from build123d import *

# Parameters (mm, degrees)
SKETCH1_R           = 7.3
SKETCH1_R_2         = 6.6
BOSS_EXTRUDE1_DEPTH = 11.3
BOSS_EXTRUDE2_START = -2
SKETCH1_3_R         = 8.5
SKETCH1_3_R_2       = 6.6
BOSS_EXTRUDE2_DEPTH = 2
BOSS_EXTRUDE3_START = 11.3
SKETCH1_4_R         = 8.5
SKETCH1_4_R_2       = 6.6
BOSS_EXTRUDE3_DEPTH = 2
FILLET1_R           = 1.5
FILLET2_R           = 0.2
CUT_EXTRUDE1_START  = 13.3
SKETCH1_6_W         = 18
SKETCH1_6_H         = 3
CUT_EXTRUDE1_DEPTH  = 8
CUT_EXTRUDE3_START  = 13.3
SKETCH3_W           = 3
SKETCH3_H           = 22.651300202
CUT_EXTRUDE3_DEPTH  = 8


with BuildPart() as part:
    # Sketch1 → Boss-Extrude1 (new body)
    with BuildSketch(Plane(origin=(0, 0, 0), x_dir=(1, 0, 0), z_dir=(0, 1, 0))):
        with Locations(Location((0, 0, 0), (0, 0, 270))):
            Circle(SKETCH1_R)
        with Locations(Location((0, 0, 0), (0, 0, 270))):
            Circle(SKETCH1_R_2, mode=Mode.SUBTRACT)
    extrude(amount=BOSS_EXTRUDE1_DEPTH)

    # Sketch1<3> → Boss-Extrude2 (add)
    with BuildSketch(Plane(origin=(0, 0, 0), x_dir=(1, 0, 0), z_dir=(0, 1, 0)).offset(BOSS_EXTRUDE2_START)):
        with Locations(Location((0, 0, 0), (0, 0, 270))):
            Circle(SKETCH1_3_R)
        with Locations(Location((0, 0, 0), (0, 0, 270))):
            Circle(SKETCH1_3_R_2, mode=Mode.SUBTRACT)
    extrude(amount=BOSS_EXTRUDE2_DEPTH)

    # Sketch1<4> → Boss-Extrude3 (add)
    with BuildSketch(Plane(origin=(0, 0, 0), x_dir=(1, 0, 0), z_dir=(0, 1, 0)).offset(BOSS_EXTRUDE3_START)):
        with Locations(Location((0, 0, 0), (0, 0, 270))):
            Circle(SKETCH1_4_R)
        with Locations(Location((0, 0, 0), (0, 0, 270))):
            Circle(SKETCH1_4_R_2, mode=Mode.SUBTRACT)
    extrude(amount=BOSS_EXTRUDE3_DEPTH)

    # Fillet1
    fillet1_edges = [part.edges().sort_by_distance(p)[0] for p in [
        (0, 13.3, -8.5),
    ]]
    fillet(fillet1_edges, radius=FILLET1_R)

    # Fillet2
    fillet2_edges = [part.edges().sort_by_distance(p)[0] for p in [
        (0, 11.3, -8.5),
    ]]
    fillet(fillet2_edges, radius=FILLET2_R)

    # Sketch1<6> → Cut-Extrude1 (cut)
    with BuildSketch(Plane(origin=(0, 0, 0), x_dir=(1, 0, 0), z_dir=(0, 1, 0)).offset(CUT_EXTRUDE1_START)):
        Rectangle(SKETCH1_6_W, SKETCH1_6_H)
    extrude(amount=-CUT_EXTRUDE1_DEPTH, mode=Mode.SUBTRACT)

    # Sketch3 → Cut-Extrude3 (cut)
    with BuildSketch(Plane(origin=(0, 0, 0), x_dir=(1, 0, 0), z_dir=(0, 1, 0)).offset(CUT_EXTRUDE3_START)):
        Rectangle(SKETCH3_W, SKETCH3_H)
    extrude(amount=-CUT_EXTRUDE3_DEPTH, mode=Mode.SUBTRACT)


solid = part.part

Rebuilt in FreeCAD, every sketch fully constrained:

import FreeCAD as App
import Part
import Sketcher

V = App.Vector
Q = App.Units.Quantity


def edges_at(feature, points):
    """Names of the edges that pass closest to the given points."""
    edges = feature.Shape.Edges
    near = lambda p: min(range(len(edges)), key=lambda i: edges[i].distToShape(Part.Vertex(*p))[0])
    return sorted({f"Edge{near(p) + 1}" for p in points})

doc = App.newDocument("Part")
params = doc.addObject("Spreadsheet::Sheet", "Params")
for row, (alias, value) in enumerate([
    ("sketch1_diameter", "14.6 mm"),
    ("sketch1_diameter2", "13.2 mm"),
    ("pad1_length", "11.3 mm"),
    ("sketch2_diameter", "17 mm"),
    ("sketch2_diameter2", "13.2 mm"),
    ("pad2_length", "2 mm"),
    ("sketch3_diameter", "17 mm"),
    ("sketch3_diameter2", "13.2 mm"),
    ("pad3_length", "2 mm"),
    ("fillet_radius", "1.5 mm"),
    ("fillet2_radius", "0.2 mm"),
    ("sketch4_width", "18 mm"),
    ("sketch4_height", "3 mm"),
    ("pocket1_length", "8 mm"),
    ("sketch5_width", "3 mm"),
    ("pocket2_length", "8 mm"),
], start=1):
    params.set(f"A{row}", alias)
    params.set(f"B{row}", "=" + value)
    params.setAlias(f"B{row}", alias)

body = doc.addObject("PartDesign::Body", "Body")

# Sketch on XZ plane
sketch1 = doc.addObject("Sketcher::SketchObject", "Sketch")
body.addObject(sketch1)
sketch1.AttachmentSupport = (doc.XZ_Plane, [""])
sketch1.MapMode = "FlatFace"
sketch1.addGeometry(Part.Circle(V(0, 0, 0), V(0, 0, 1), 7), False)
sketch1.addGeometry(Part.Circle(V(0, 0, 0), V(0, 0, 1), 7), False)
sketch1.addConstraint(Sketcher.Constraint("Coincident", 0, 3, -1, 1))
sketch1.addConstraint(Sketcher.Constraint("Coincident", 1, 3, -1, 1))
sketch1.addConstraint(Sketcher.Constraint("Diameter", 0, Q("14.6 mm")))
sketch1.addConstraint(Sketcher.Constraint("Diameter", 1, Q("13.2 mm")))
sketch1.setExpression("Constraints[2]", "Params.sketch1_diameter")
sketch1.setExpression("Constraints[3]", "Params.sketch1_diameter2")
pad1 = doc.addObject("PartDesign::Pad", "Pad")
body.addObject(pad1)
pad1.Profile = sketch1
pad1.setExpression("Length", "Params.pad1_length")
pad1.Reversed = True

# Sketch on XZ plane
sketch2 = doc.addObject("Sketcher::SketchObject", "Sketch001")
body.addObject(sketch2)
sketch2.AttachmentSupport = (doc.XZ_Plane, [""])
sketch2.MapMode = "FlatFace"
sketch2.AttachmentOffset = App.Placement(V(0, 0, 2), App.Rotation())
sketch2.addGeometry(Part.Circle(V(0, 0, 0), V(0, 0, 1), 8), False)
sketch2.addGeometry(Part.Circle(V(0, 0, 0), V(0, 0, 1), 7), False)
sketch2.addConstraint(Sketcher.Constraint("Coincident", 0, 3, -1, 1))
sketch2.addConstraint(Sketcher.Constraint("Coincident", 1, 3, -1, 1))
sketch2.addConstraint(Sketcher.Constraint("Diameter", 0, Q("17 mm")))
sketch2.addConstraint(Sketcher.Constraint("Diameter", 1, Q("13.2 mm")))
sketch2.setExpression("Constraints[2]", "Params.sketch2_diameter")
sketch2.setExpression("Constraints[3]", "Params.sketch2_diameter2")
pad2 = doc.addObject("PartDesign::Pad", "Pad001")
body.addObject(pad2)
pad2.Profile = sketch2
pad2.setExpression("Length", "Params.pad2_length")
pad2.Reversed = True

# Sketch on XZ plane
sketch3 = doc.addObject("Sketcher::SketchObject", "Sketch002")
body.addObject(sketch3)
sketch3.AttachmentSupport = (doc.XZ_Plane, [""])
sketch3.MapMode = "FlatFace"
sketch3.AttachmentOffset = App.Placement(V(0, 0, -11.3), App.Rotation())
sketch3.addGeometry(Part.Circle(V(0, 0, 0), V(0, 0, 1), 8), False)
sketch3.addGeometry(Part.Circle(V(0, 0, 0), V(0, 0, 1), 7), False)
sketch3.addConstraint(Sketcher.Constraint("Coincident", 0, 3, -1, 1))
sketch3.addConstraint(Sketcher.Constraint("Coincident", 1, 3, -1, 1))
sketch3.addConstraint(Sketcher.Constraint("Diameter", 0, Q("17 mm")))
sketch3.addConstraint(Sketcher.Constraint("Diameter", 1, Q("13.2 mm")))
sketch3.setExpression("Constraints[2]", "Params.sketch3_diameter")
sketch3.setExpression("Constraints[3]", "Params.sketch3_diameter2")
pad3 = doc.addObject("PartDesign::Pad", "Pad002")
body.addObject(pad3)
pad3.Profile = sketch3
pad3.setExpression("Length", "Params.pad3_length")
pad3.Reversed = True
doc.recompute()

fillet = doc.addObject("PartDesign::Fillet", "Fillet")
body.addObject(fillet)
fillet.Base = (pad3, edges_at(pad3, [(0, 13.3, -8.5)]))
fillet.setExpression("Radius", "Params.fillet_radius")
doc.recompute()

fillet2 = doc.addObject("PartDesign::Fillet", "Fillet001")
body.addObject(fillet2)
fillet2.Base = (fillet, edges_at(fillet, [(0, 11.3, -8.5)]))
fillet2.setExpression("Radius", "Params.fillet2_radius")

# Sketch on XZ plane
sketch4 = doc.addObject("Sketcher::SketchObject", "Sketch003")
body.addObject(sketch4)
sketch4.AttachmentSupport = (doc.XZ_Plane, [""])
sketch4.MapMode = "FlatFace"
sketch4.AttachmentOffset = App.Placement(V(0, 0, -13.3), App.Rotation())
sketch4.addGeometry(Part.LineSegment(V(-9, -1.5, 0), V(-9, 1.5, 0)), False)
sketch4.addGeometry(Part.LineSegment(V(-9, 1.5, 0), V(9, 1.5, 0)), False)
sketch4.addGeometry(Part.LineSegment(V(9, 1.5, 0), V(9, -1.5, 0)), False)
sketch4.addGeometry(Part.LineSegment(V(9, -1.5, 0), V(-9, -1.5, 0)), False)
sketch4.addConstraint(Sketcher.Constraint("Coincident", 0, 2, 1, 1))
sketch4.addConstraint(Sketcher.Constraint("Coincident", 1, 2, 2, 1))
sketch4.addConstraint(Sketcher.Constraint("Coincident", 2, 2, 3, 1))
sketch4.addConstraint(Sketcher.Constraint("Coincident", 3, 2, 0, 1))
sketch4.addConstraint(Sketcher.Constraint("Vertical", 0))
sketch4.addConstraint(Sketcher.Constraint("Horizontal", 1))
sketch4.addConstraint(Sketcher.Constraint("Vertical", 2))
sketch4.addConstraint(Sketcher.Constraint("Horizontal", 3))
sketch4.addConstraint(Sketcher.Constraint("Symmetric", 0, 2, 2, 2, -1, 1))
sketch4.addConstraint(Sketcher.Constraint("DistanceX", 1, 1, 1, 2, Q("18 mm")))
sketch4.addConstraint(Sketcher.Constraint("DistanceY", 0, 1, 0, 2, Q("3 mm")))
sketch4.setExpression("Constraints[9]", "Params.sketch4_width")
sketch4.setExpression("Constraints[10]", "Params.sketch4_height")
pocket1 = doc.addObject("PartDesign::Pocket", "Pocket")
body.addObject(pocket1)
pocket1.Profile = sketch4
pocket1.setExpression("Length", "Params.pocket1_length")
pocket1.Reversed = True

# Sketch on XZ plane
sketch5 = doc.addObject("Sketcher::SketchObject", "Sketch004")
body.addObject(sketch5)
sketch5.AttachmentSupport = (doc.XZ_Plane, [""])
sketch5.MapMode = "FlatFace"
sketch5.AttachmentOffset = App.Placement(V(0, 0, -13.3), App.Rotation())
sketch5.addGeometry(Part.LineSegment(V(-1.5, -11.3, 0), V(-1.5, 11.3, 0)), False)
sketch5.addGeometry(Part.LineSegment(V(-1.5, 11.3, 0), V(1.5, 11.3, 0)), False)
sketch5.addGeometry(Part.LineSegment(V(1.5, 11.3, 0), V(1.5, -11.3, 0)), False)
sketch5.addGeometry(Part.LineSegment(V(1.5, -11.3, 0), V(-1.5, -11.3, 0)), False)
sketch5.addConstraint(Sketcher.Constraint("Coincident", 0, 2, 1, 1))
sketch5.addConstraint(Sketcher.Constraint("Coincident", 1, 2, 2, 1))
sketch5.addConstraint(Sketcher.Constraint("Coincident", 2, 2, 3, 1))
sketch5.addConstraint(Sketcher.Constraint("Coincident", 3, 2, 0, 1))
sketch5.addConstraint(Sketcher.Constraint("Vertical", 0))
sketch5.addConstraint(Sketcher.Constraint("Horizontal", 1))
sketch5.addConstraint(Sketcher.Constraint("Vertical", 2))
sketch5.addConstraint(Sketcher.Constraint("Horizontal", 3))
sketch5.addConstraint(Sketcher.Constraint("Symmetric", 0, 2, 2, 2, -1, 1))
sketch5.addConstraint(Sketcher.Constraint("DistanceX", 1, 1, 1, 2, Q("3 mm")))
sketch5.addConstraint(Sketcher.Constraint("DistanceY", 0, 1, 0, 2, Q("22.6513 mm")))
sketch5.setExpression("Constraints[9]", "Params.sketch5_width")
pocket2 = doc.addObject("PartDesign::Pocket", "Pocket001")
body.addObject(pocket2)
pocket2.Profile = sketch5
pocket2.setExpression("Length", "Params.pocket2_length")
pocket2.Reversed = True

doc.recompute()
